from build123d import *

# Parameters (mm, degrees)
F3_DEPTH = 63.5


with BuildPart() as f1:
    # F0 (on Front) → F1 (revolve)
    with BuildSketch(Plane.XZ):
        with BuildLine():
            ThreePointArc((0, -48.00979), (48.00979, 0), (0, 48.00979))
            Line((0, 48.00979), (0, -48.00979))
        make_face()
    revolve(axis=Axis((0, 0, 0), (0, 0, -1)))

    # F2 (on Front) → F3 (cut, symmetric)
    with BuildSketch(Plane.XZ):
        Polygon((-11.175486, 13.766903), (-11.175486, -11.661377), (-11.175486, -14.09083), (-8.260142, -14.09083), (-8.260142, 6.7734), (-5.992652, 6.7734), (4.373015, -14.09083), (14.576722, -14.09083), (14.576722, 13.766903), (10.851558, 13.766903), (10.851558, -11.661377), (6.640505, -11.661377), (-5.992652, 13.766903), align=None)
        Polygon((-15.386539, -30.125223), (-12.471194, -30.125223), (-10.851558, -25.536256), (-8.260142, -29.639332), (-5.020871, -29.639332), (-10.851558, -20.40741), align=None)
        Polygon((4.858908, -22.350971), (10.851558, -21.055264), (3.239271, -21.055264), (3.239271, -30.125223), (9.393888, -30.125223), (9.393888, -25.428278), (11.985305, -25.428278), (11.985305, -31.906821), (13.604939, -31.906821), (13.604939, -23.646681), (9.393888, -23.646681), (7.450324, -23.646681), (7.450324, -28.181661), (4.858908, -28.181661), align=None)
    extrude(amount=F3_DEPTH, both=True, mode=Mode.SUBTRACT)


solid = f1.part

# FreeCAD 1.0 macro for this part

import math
import FreeCAD as App
import Part
import Sketcher
from FreeCAD import Vector

doc = App.newDocument("Part")
params = doc.addObject("Spreadsheet::Sheet", "Params")
for row, (alias, value) in enumerate([
    ("revolution_angle", "360 deg"),
    ("pocket1_length", "5 in"),
], start=1):
    params.set(f"A{row}", alias)
    params.set(f"B{row}", "=" + value)
    params.setAlias(f"B{row}", alias)

body = doc.addObject("PartDesign::Body", "Body")

sketch1 = body.newObject("Sketcher::SketchObject", "Sketch")
sketch1.AttachmentSupport = (doc.getObject("XZ_Plane"), [""])
sketch1.MapMode = "FlatFace"
sketch1.addGeometry(Part.ArcOfCircle(Part.Circle(Vector(0, 0, 0), Vector(0, 0, 1), 48), math.radians(-90), math.radians(90)), False)
sketch1.addGeometry(Part.LineSegment(Vector(0, 48, 0), Vector(0, -48, 0)), False)
sketch1.addConstraint(Sketcher.Constraint("Coincident", 0, 1, 1, 2))
sketch1.addConstraint(Sketcher.Constraint("Coincident", 1, 1, 0, 2))
sketch1.addConstraint(Sketcher.Constraint("Vertical", 1))
sketch1.addConstraint(Sketcher.Constraint("Coincident", 0, 3, -1, 1))
sketch1.addConstraint(Sketcher.Constraint("PointOnObject", 0, 1, -2))
sketch1.addConstraint(Sketcher.Constraint("Radius", 0, 48.00979))
revolution = body.newObject("PartDesign::Revolution", "Revolution")
revolution.Profile = sketch1
revolution.ReferenceAxis = (sketch1, ["V_Axis"])
revolution.setExpression("Angle", "Params.revolution_angle")

sketch2 = body.newObject("Sketcher::SketchObject", "Sketch001")
sketch2.AttachmentSupport = (doc.getObject("XZ_Plane"), [""])
sketch2.MapMode = "FlatFace"
sketch2.addGeometry(Part.LineSegment(Vector(-11.2, 13.8, 0), Vector(-11.2, -14.1, 0)), False)
sketch2.addGeometry(Part.LineSegment(Vector(-11.2, -14.1, 0), Vector(-8.3, -14.1, 0)), False)
sketch2.addGeometry(Part.LineSegment(Vector(-8.3, -14.1, 0), Vector(-8.3, 6.8, 0)), False)
sketch2.addGeometry(Part.LineSegment(Vector(-8.3, 6.8, 0), Vector(-6, 6.8, 0)), False)
sketch2.addGeometry(Part.LineSegment(Vector(-6, 6.8, 0), Vector(4.4, -14.1, 0)), False)
sketch2.addGeometry(Part.LineSegment(Vector(4.4, -14.1, 0), Vector(14.6, -14.1, 0)), False)
sketch2.addGeometry(Part.LineSegment(Vector(14.6, -14.1, 0), Vector(14.6, 13.8, 0)), False)
sketch2.addGeometry(Part.LineSegment(Vector(14.6, 13.8, 0), Vector(10.9, 13.8, 0)), False)
sketch2.addGeometry(Part.LineSegment(Vector(10.9, 13.8, 0), Vector(10.9, -11.7, 0)), False)
sketch2.addGeometry(Part.LineSegment(Vector(10.9, -11.7, 0), Vector(6.6, -11.7, 0)), False)
sketch2.addGeometry(Part.LineSegment(Vector(6.6, -11.7, 0), Vector(-6, 13.8, 0)), False)
sketch2.addGeometry(Part.LineSegment(Vector(-6, 13.8, 0), Vector(-11.2, 13.8, 0)), False)
sketch2.addGeometry(Part.LineSegment(Vector(-15.4, -30.1, 0), Vector(-12.5, -30.1, 0)), False)
sketch2.addGeometry(Part.LineSegment(Vector(-12.5, -30.1, 0), Vector(-10.9, -25.5, 0)), False)
sketch2.addGeometry(Part.LineSegment(Vector(-10.9, -25.5, 0), Vector(-8.3, -29.6, 0)), False)
sketch2.addGeometry(Part.LineSegment(Vector(-8.3, -29.6, 0), Vector(-5, -29.6, 0)), False)
sketch2.addGeometry(Part.LineSegment(Vector(-5, -29.6, 0), Vector(-10.9, -20.4, 0)), False)
sketch2.addGeometry(Part.LineSegment(Vector(-10.9, -20.4, 0), Vector(-15.4, -30.1, 0)), False)
sketch2.addGeometry(Part.LineSegment(Vector(4.9, -22.4, 0), Vector(10.9, -21.1, 0)), False)
sketch2.addGeometry(Part.LineSegment(Vector(10.9, -21.1, 0), Vector(3.2, -21.1, 0)), False)
sketch2.addGeometry(Part.LineSegment(Vector(3.2, -21.1, 0), Vector(3.2, -30.1, 0)), False)
sketch2.addGeometry(Part.LineSegment(Vector(3.2, -30.1, 0), Vector(9.4, -30.1, 0)), False)
sketch2.addGeometry(Part.LineSegment(Vector(9.4, -30.1, 0), Vector(9.4, -25.4, 0)), False)
sketch2.addGeometry(Part.LineSegment(Vector(9.4, -25.4, 0), Vector(12, -25.4, 0)), False)
sketch2.addGeometry(Part.LineSegment(Vector(12, -25.4, 0), Vector(12, -31.9, 0)), False)
sketch2.addGeometry(Part.LineSegment(Vector(12, -31.9, 0), Vector(13.6, -31.9, 0)), False)
sketch2.addGeometry(Part.LineSegment(Vector(13.6, -31.9, 0), Vector(13.6, -23.6, 0)), False)
sketch2.addGeometry(Part.LineSegment(Vector(13.6, -23.6, 0), Vector(7.5, -23.6, 0)), False)
sketch2.addGeometry(Part.LineSegment(Vector(7.5, -23.6, 0), Vector(7.5, -28.2, 0)), False)
sketch2.addGeometry(Part.LineSegment(Vector(7.5, -28.2, 0), Vector(4.9, -28.2, 0)), False)
sketch2.addGeometry(Part.LineSegment(Vector(4.9, -28.2, 0), Vector(4.9, -22.4, 0)), False)
sketch2.addConstraint(Sketcher.Constraint("Coincident", 0, 2, 1, 1))
sketch2.addConstraint(Sketcher.Constraint("Coincident", 1, 2, 2, 1))
sketch2.addConstraint(Sketcher.Constraint("Coincident", 2, 2, 3, 1))
sketch2.addConstraint(Sketcher.Constraint("Coincident", 3, 2, 4, 1))
sketch2.addConstraint(Sketcher.Constraint("Coincident", 4, 2, 5, 1))
sketch2.addConstraint(Sketcher.Constraint("Coincident", 5, 2, 6, 1))
sketch2.addConstraint(Sketcher.Constraint("Coincident", 6, 2, 7, 1))
sketch2.addConstraint(Sketcher.Constraint("Coincident", 7, 2, 8, 1))
sketch2.addConstraint(Sketcher.Constraint("Coincident", 8, 2, 9, 1))
sketch2.addConstraint(Sketcher.Constraint("Coincident", 9, 2, 10, 1))
sketch2.addConstraint(Sketcher.Constraint("Coincident", 10, 2, 11, 1))
sketch2.addConstraint(Sketcher.Constraint("Coincident", 11, 2, 0, 1))
sketch2.addConstraint(Sketcher.Constraint("Coincident", 12, 2, 13, 1))
sketch2.addConstraint(Sketcher.Constraint("Coincident", 13, 2, 14, 1))
sketch2.addConstraint(Sketcher.Constraint("Coincident", 14, 2, 15, 1))
sketch2.addConstraint(Sketcher.Constraint("Coincident", 15, 2, 16, 1))
sketch2.addConstraint(Sketcher.Constraint("Coincident", 16, 2, 17, 1))
sketch2.addConstraint(Sketcher.Constraint("Coincident", 17, 2, 12, 1))
sketch2.addConstraint(Sketcher.Constraint("Coincident", 18, 2, 19, 1))
sketch2.addConstraint(Sketcher.Constraint("Coincident", 19, 2, 20, 1))
sketch2.addConstraint(Sketcher.Constraint("Coincident", 20, 2, 21, 1))
sketch2.addConstraint(Sketcher.Constraint("Coincident", 21, 2, 22, 1))
sketch2.addConstraint(Sketcher.Constraint("Coincident", 22, 2, 23, 1))
sketch2.addConstraint(Sketcher.Constraint("Coincident", 23, 2, 24, 1))
sketch2.addConstraint(Sketcher.Constraint("Coincident", 24, 2, 25, 1))
sketch2.addConstraint(Sketcher.Constraint("Coincident", 25, 2, 26, 1))
sketch2.addConstraint(Sketcher.Constraint("Coincident", 26, 2, 27, 1))
sketch2.addConstraint(Sketcher.Constraint("Coincident", 27, 2, 28, 1))
sketch2.addConstraint(Sketcher.Constraint("Coincident", 28, 2, 29, 1))
sketch2.addConstraint(Sketcher.Constraint("Coincident", 29, 2, 30, 1))
sketch2.addConstraint(Sketcher.Constraint("Coincident", 30, 2, 18, 1))
sketch2.addConstraint(Sketcher.Constraint("Vertical", 0))
sketch2.addConstraint(Sketcher.Constraint("Horizontal", 1))
sketch2.addConstraint(Sketcher.Constraint("Vertical", 2))
sketch2.addConstraint(Sketcher.Constraint("Horizontal", 3))
sketch2.addConstraint(Sketcher.Constraint("Horizontal", 5))
sketch2.addConstraint(Sketcher.Constraint("Vertical", 6))
sketch2.addConstraint(Sketcher.Constraint("Horizontal", 7))
sketch2.addConstraint(Sketcher.Constraint("Vertical", 8))
sketch2.addConstraint(Sketcher.Constraint("Horizontal", 9))
sketch2.addConstraint(Sketcher.Constraint("Horizontal", 11))
sketch2.addConstraint(Sketcher.Constraint("Horizontal", 12))
sketch2.addConstraint(Sketcher.Constraint("Horizontal", 15))
sketch2.addConstraint(Sketcher.Constraint("Horizontal", 19))
sketch2.addConstraint(Sketcher.Constraint("Vertical", 20))
sketch2.addConstraint(Sketcher.Constraint("Horizontal", 21))
sketch2.addConstraint(Sketcher.Constraint("Vertical", 22))
sketch2.addConstraint(Sketcher.Constraint("Horizontal", 23))
sketch2.addConstraint(Sketcher.Constraint("Vertical", 24))
sketch2.addConstraint(Sketcher.Constraint("Horizontal", 25))
sketch2.addConstraint(Sketcher.Constraint("Vertical", 26))
sketch2.addConstraint(Sketcher.Constraint("Horizontal", 27))
sketch2.addConstraint(Sketcher.Constraint("Vertical", 28))
sketch2.addConstraint(Sketcher.Constraint("Horizontal", 29))
sketch2.addConstraint(Sketcher.Constraint("Vertical", 30))
sketch2.addConstraint(Sketcher.Constraint("Parallel", 4, 10))
sketch2.addConstraint(Sketcher.Constraint("Parallel", 14, 16))
sketch2.addConstraint(Sketcher.Constraint("Horizontal", 1, 2, 4, 2))
sketch2.addConstraint(Sketcher.Constraint("Horizontal", 7, 2, 10, 2))
sketch2.addConstraint(Sketcher.Constraint("Horizontal", 17, 2, 20, 2))
sketch2.addConstraint(Sketcher.Constraint("Vertical", 3, 2, 10, 2))
sketch2.addConstraint(Sketcher.Constraint("Vertical", 2, 2, 14, 2))
sketch2.addConstraint(Sketcher.Constraint("Vertical", 13, 2, 16, 2))
sketch2.addConstraint(Sketcher.Constraint("Vertical", 8, 2, 18, 2))
sketch2.addConstraint(Sketcher.Constraint("Equal", 1, 12))
sketch2.addConstraint(Sketcher.Constraint("Equal", 23, 29))
sketch2.addConstraint(Sketcher.Constraint("Distance", 13, 4.866399))
sketch2.addConstraint(Sketcher.Constraint("DistanceX", 3, 1, 3, 2, 2.26749))
sketch2.addConstraint(Sketcher.Constraint("DistanceX", 15, 1, 15, 2, 3.239271))
sketch2.addConstraint(Sketcher.Constraint("DistanceY", 2, 1, 2, 2, 20.86423))
sketch2.addConstraint(Sketcher.Constraint("DistanceY", 8, 2, 8, 1, 25.42828))
sketch2.addConstraint(Sketcher.Constraint("DistanceY", 20, 2, 20, 1, 9.069959))
sketch2.addConstraint(Sketcher.Constraint("DistanceY", 26, 1, 26, 2, 8.26014))
sketch2.addConstraint(Sketcher.Constraint("DistanceY", 28, 2, 28, 1, 4.53498))
sketch2.addConstraint(Sketcher.Constraint("DistanceY", 30, 1, 30, 2, 5.83069))
sketch2.addConstraint(Sketcher.Constraint("DistanceY", -1, 1, 2, 2, 6.7734))
sketch2.addConstraint(Sketcher.Constraint("DistanceX", 0, 2, 4, 2, 15.548501))
sketch2.addConstraint(Sketcher.Constraint("DistanceX", 2, 2, 7, 2, 19.1117))
sketch2.addConstraint(Sketcher.Constraint("DistanceX", 12, 2, 9, 2, 19.111699))
sketch2.addConstraint(Sketcher.Constraint("DistanceY", 14, 2, 1, 2, 15.548502))
sketch2.addConstraint(Sketcher.Constraint("DistanceY", 24, 2, 21, 2, 1.781598))
sketch2.addConstraint(Sketcher.Constraint("DistanceX", 1, 1, 1, 2, 2.915344))
sketch2.addConstraint(Sketcher.Constraint("DistanceX", 5, 1, 5, 2, 10.203707))
sketch2.addConstraint(Sketcher.Constraint("DistanceX", 19, 2, 19, 1, 7.612287))
sketch2.addConstraint(Sketcher.Constraint("DistanceX", 21, 1, 21, 2, 6.154617))
sketch2.addConstraint(Sketcher.Constraint("DistanceX", 23, 1, 23, 2, 2.591417))
sketch2.addConstraint(Sketcher.Constraint("DistanceX", 25, 1, 25, 2, 1.619634))
sketch2.addConstraint(Sketcher.Constraint("DistanceX", 27, 2, 27, 1, 6.154615))
sketch2.addConstraint(Sketcher.Constraint("DistanceY", 0, 2, 0, 1, 27.857733))
sketch2.addConstraint(Sketcher.Constraint("DistanceY", 22, 1, 22, 2, 4.696945))
sketch2.addConstraint(Sketcher.Constraint("DistanceX", 3, 2, -1, 1, 5.992652))
sketch2.addConstraint(Sketcher.Constraint("DistanceX", 13, 2, -1, 1, 10.851558))
sketch2.addConstraint(Sketcher.Constraint("DistanceY", 16, 2, -1, 1, 20.40741))
pocket1 = body.newObject("PartDesign::Pocket", "Pocket")
pocket1.Profile = sketch2
pocket1.setExpression("Length", "Params.pocket1_length")
pocket1.Midplane = True

doc.recompute()
